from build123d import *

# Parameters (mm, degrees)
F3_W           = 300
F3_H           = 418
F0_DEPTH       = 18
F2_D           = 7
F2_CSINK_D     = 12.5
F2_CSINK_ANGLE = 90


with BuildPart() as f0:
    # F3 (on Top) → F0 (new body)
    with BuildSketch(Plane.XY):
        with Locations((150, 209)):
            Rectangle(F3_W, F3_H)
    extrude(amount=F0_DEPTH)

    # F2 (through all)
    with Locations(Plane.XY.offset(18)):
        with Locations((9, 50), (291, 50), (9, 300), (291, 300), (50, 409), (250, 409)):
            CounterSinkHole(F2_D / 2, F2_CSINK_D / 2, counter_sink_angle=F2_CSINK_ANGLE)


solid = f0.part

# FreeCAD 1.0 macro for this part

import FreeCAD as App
import Part
import Sketcher

V = App.Vector
Q = App.Units.Quantity

doc = App.newDocument("Part")
body = doc.addObject("PartDesign::Body", "Body")

sketch1 = doc.addObject("Sketcher::SketchObject", "Sketch")
body.addObject(sketch1)
sketch1.AttachmentSupport = (doc.XY_Plane, [""])
sketch1.MapMode = "FlatFace"
sketch1.addGeometry([
    Part.LineSegment(V(0, 418, 0), V(0, 0, 0)),
    Part.LineSegment(V(0, 0, 0), V(300, 0, 0)),
    Part.LineSegment(V(300, 0, 0), V(300, 418, 0)),
    Part.LineSegment(V(300, 418, 0), V(0, 418, 0)),
], False)
sketch1.addConstraint([
    Sketcher.Constraint("Coincident", 0, 2, 1, 1),
    Sketcher.Constraint("Coincident", 1, 2, 2, 1),
    Sketcher.Constraint("Coincident", 2, 2, 3, 1),
    Sketcher.Constraint("Coincident", 3, 2, 0, 1),
    Sketcher.Constraint("Vertical", 0),
    Sketcher.Constraint("Horizontal", 1),
    Sketcher.Constraint("Vertical", 2),
    Sketcher.Constraint("Horizontal", 3),
    Sketcher.Constraint("Coincident", 0, 2, -1, 1),
    Sketcher.Constraint("DistanceX", 1, 1, 1, 2, Q("300 mm")),
    Sketcher.Constraint("DistanceY", 0, 2, 0, 1, Q("418 mm")),
])
pad1 = doc.addObject("PartDesign::Pad", "Pad")
body.addObject(pad1)
pad1.Profile = sketch1
pad1.Length = 18

sketch2 = doc.addObject("Sketcher::SketchObject", "Sketch001")
body.addObject(sketch2)
sketch2.AttachmentSupport = (doc.XY_Plane, [""])
sketch2.MapMode = "FlatFace"
sketch2.AttachmentOffset = App.Placement(V(0, 0, 18), App.Rotation())
sketch2.addGeometry([
    Part.Circle(V(9, 50, 0), V(0, 0, 1), 3.5),
    Part.Circle(V(291, 50, 0), V(0, 0, 1), 3.5),
    Part.Circle(V(9, 300, 0), V(0, 0, 1), 3.5),
    Part.Circle(V(291, 300, 0), V(0, 0, 1), 3.5),
    Part.Circle(V(50, 409, 0), V(0, 0, 1), 3.5),
    Part.Circle(V(250, 409, 0), V(0, 0, 1), 3.5),
], False)
sketch2.addConstraint([
    Sketcher.Constraint("Equal", 0, 1),
    Sketcher.Constraint("Equal", 1, 2),
    Sketcher.Constraint("Equal", 2, 3),
    Sketcher.Constraint("Equal", 3, 4),
    Sketcher.Constraint("Equal", 4, 5),
    Sketcher.Constraint("Horizontal", 0, 3, 1, 3),
    Sketcher.Constraint("Horizontal", 2, 3, 3, 3),
    Sketcher.Constraint("Horizontal", 4, 3, 5, 3),
    Sketcher.Constraint("Vertical", 0, 3, 2, 3),
    Sketcher.Constraint("Vertical", 1, 3, 3, 3),
    Sketcher.Constraint("Diameter", 0, Q("7 mm")),
    Sketcher.Constraint("DistanceX", -1, 1, 0, 3, Q("9 mm")),
    Sketcher.Constraint("DistanceY", -1, 1, 0, 3, Q("50 mm")),
    Sketcher.Constraint("DistanceX", -1, 1, 1, 3, Q("291 mm")),
    Sketcher.Constraint("DistanceY", -1, 1, 2, 3, Q("300 mm")),
    Sketcher.Constraint("DistanceX", -1, 1, 4, 3, Q("50 mm")),
    Sketcher.Constraint("DistanceY", -1, 1, 4, 3, Q("409 mm")),
    Sketcher.Constraint("DistanceX", -1, 1, 5, 3, Q("250 mm")),
])
doc.recompute()
hole = doc.addObject("PartDesign::Hole", "Hole")
body.addObject(hole)
hole.Profile = sketch2
hole.ThreadType = "None"
hole.Diameter = 7
hole.DepthType = "ThroughAll"
hole.HoleCutType = "Countersink"
hole.HoleCutDiameter = 12.5
hole.HoleCutCountersinkAngle = 90

doc.recompute()
